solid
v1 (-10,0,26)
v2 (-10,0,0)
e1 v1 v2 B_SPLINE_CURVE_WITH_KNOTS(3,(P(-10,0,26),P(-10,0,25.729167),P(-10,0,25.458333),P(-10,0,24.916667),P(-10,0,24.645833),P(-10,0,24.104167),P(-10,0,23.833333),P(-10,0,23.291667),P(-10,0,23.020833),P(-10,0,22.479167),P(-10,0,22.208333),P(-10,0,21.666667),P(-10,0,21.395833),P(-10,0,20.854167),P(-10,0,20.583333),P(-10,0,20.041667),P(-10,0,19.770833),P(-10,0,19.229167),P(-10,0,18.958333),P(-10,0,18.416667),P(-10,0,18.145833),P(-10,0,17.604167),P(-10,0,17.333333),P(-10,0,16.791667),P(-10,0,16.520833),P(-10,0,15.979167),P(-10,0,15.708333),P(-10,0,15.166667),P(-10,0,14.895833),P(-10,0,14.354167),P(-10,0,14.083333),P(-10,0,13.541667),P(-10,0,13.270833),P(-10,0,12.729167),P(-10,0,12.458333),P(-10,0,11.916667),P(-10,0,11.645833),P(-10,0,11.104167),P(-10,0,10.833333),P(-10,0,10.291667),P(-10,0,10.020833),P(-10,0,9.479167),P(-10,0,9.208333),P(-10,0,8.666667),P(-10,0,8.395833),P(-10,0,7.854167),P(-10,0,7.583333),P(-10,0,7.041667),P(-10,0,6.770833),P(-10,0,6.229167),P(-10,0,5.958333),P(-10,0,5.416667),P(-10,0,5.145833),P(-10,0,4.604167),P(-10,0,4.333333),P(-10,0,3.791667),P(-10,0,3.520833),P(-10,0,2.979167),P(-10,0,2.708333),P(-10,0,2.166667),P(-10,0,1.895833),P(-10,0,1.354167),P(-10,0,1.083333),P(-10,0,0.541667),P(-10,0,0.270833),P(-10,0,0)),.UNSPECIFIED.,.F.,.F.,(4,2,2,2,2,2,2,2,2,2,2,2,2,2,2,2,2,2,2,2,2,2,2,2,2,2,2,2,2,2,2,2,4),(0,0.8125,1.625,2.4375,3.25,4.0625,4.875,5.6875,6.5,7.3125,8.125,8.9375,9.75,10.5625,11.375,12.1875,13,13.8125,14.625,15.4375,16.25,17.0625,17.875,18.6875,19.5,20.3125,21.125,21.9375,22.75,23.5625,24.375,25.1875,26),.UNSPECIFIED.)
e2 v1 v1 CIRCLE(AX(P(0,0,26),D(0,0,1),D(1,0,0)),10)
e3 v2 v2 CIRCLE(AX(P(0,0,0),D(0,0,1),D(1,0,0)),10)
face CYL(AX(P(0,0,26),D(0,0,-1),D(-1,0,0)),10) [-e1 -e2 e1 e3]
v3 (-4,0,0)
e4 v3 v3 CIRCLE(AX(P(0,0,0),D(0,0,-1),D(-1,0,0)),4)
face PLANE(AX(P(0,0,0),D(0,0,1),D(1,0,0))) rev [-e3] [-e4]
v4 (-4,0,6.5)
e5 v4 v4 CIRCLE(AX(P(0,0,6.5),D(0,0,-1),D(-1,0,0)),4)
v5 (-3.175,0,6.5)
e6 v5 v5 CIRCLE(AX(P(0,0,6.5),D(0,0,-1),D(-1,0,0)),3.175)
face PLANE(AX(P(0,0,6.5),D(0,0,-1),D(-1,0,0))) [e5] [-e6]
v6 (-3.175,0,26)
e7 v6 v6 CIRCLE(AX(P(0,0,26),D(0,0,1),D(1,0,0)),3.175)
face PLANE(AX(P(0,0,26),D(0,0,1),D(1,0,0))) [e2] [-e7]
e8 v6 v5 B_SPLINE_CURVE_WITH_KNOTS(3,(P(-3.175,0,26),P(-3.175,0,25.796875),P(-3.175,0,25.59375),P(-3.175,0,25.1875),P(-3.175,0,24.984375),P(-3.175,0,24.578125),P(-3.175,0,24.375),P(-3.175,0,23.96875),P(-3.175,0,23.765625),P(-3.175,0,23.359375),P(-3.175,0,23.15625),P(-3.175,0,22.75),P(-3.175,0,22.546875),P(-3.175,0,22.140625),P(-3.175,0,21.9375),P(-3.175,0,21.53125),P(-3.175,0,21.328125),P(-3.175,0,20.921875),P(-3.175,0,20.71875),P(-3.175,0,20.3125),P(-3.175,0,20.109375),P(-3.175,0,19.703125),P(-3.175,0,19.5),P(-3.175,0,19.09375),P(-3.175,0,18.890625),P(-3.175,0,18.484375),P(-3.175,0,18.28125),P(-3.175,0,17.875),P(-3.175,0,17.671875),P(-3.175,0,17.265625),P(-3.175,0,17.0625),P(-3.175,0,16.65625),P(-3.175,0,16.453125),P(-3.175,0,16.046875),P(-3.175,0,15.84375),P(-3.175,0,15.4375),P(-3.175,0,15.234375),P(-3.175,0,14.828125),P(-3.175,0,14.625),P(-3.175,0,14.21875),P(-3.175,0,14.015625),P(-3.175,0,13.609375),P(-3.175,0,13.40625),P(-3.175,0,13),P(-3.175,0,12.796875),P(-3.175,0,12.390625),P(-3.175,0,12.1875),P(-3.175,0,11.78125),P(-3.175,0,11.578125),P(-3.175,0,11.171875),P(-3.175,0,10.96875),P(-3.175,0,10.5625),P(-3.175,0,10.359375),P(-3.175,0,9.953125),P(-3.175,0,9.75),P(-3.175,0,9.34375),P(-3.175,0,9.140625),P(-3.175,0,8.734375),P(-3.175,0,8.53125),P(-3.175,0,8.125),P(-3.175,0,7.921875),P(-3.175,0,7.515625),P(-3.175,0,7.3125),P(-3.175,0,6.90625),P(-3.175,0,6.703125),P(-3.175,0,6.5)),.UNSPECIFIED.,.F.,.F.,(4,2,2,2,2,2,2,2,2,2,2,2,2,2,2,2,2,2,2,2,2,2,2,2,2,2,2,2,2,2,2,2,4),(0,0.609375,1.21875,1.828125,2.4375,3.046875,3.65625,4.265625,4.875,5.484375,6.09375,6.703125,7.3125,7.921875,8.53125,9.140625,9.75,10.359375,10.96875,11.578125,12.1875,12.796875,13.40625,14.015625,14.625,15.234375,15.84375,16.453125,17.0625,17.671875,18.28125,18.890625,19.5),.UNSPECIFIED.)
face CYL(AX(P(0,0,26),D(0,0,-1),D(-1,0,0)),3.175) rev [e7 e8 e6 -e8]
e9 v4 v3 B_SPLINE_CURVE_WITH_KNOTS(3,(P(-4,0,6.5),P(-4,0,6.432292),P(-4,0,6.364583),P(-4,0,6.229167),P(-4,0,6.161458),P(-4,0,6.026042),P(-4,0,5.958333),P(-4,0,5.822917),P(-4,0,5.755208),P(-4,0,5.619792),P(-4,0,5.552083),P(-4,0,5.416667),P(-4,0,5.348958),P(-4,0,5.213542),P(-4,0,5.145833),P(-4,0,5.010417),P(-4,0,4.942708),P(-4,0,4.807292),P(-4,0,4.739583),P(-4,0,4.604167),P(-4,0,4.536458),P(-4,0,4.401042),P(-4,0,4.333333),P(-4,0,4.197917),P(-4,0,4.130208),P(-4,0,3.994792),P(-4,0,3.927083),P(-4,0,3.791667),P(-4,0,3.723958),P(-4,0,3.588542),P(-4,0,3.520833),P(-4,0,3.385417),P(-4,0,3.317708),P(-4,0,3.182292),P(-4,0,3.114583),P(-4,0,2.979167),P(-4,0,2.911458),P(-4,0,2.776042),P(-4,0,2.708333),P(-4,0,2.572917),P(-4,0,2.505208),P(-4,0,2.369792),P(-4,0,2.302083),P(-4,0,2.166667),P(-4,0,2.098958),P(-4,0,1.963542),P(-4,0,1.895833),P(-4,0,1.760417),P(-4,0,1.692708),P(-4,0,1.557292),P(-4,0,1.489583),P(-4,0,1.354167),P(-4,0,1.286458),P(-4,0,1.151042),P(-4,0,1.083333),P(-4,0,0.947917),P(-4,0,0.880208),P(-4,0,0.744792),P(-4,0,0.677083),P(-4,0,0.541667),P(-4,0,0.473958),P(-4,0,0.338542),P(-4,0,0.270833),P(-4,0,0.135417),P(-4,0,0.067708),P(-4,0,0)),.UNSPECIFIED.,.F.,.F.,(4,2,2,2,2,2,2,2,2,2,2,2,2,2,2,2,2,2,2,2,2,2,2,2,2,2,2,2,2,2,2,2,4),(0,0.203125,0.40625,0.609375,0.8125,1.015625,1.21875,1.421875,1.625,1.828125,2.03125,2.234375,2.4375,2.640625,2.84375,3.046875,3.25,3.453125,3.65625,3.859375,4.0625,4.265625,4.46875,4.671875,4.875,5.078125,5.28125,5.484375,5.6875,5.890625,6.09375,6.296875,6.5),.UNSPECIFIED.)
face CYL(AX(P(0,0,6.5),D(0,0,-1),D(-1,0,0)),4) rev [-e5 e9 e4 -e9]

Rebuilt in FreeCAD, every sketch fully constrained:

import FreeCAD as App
import Part
import Sketcher

V = App.Vector

doc = App.newDocument("Part")
body = doc.addObject("PartDesign::Body", "Body")

# Sketch on XY plane
sketch1 = body.newObject("Sketcher::SketchObject", "Sketch")
sketch1.AttachmentSupport = (doc.getObject("XY_Plane"), [""])
sketch1.MapMode = "FlatFace"
sketch1.addGeometry(Part.Circle(V(0, 0, 0), V(0, 0, 1), 10), False)
sketch1.addGeometry(Part.Circle(V(0, 0, 0), V(0, 0, 1), 3.175), False)
sketch1.addConstraint(Sketcher.Constraint("Coincident", 0, 3, -1, 1))
sketch1.addConstraint(Sketcher.Constraint("Coincident", 1, 3, -1, 1))
sketch1.addConstraint(Sketcher.Constraint("Diameter", 0, 20.0))
sketch1.addConstraint(Sketcher.Constraint("Diameter", 1, 6.35))
pad1 = body.newObject("PartDesign::Pad", "Pad")
pad1.Profile = sketch1
pad1.Length = 26

# Sketch on XY plane
sketch2 = body.newObject("Sketcher::SketchObject", "Sketch001")
sketch2.AttachmentSupport = (doc.getObject("XY_Plane"), [""])
sketch2.MapMode = "FlatFace"
sketch2.addGeometry(Part.Circle(V(0, 0, 0), V(0, 0, 1), 4), False)
sketch2.addConstraint(Sketcher.Constraint("Coincident", 0, 3, -1, 1))
sketch2.addConstraint(Sketcher.Constraint("Diameter", 0, 8.0))
pocket1 = body.newObject("PartDesign::Pocket", "Pocket")
pocket1.Profile = sketch2
pocket1.Length = 6.5
pocket1.Reversed = True

doc.recompute()
